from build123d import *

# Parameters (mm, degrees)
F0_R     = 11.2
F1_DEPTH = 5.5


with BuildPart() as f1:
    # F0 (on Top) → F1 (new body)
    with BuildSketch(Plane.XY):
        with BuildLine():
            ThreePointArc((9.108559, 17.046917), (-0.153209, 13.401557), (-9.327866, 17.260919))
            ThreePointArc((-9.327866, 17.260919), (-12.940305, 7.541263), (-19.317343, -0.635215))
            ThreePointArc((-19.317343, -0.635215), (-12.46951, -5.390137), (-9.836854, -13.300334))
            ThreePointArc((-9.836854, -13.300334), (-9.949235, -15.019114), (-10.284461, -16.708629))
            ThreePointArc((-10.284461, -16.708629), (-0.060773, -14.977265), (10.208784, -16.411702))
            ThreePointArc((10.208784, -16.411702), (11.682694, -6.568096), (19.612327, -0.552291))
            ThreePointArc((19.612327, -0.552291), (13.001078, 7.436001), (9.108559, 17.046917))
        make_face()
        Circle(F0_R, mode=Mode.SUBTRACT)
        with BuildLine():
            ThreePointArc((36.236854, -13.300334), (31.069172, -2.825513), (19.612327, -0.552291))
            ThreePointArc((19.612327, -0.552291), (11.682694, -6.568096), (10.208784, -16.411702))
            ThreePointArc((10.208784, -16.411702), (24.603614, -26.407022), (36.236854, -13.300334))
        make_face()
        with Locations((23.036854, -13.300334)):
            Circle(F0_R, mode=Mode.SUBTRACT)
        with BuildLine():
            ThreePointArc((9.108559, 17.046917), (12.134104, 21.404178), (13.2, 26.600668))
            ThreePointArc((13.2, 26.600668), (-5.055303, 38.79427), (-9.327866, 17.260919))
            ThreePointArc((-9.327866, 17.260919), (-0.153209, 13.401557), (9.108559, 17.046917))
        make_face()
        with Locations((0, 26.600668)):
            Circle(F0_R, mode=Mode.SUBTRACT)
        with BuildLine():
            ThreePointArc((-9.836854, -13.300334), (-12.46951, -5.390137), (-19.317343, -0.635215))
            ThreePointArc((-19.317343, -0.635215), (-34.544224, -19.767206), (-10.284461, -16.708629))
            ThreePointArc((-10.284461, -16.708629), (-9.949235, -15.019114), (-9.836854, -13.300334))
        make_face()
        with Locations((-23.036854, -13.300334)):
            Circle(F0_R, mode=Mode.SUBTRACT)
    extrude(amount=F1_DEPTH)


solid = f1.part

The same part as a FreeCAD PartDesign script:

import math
import FreeCAD as App
import Part
import Sketcher

V = App.Vector

doc = App.newDocument("Part")
body = doc.addObject("PartDesign::Body", "Body")

# Sketch on XY plane
sketch1 = doc.addObject("Sketcher::SketchObject", "Sketch")
body.addObject(sketch1)
sketch1.AttachmentSupport = (doc.XY_Plane, [""])
sketch1.MapMode = "FlatFace"
sketch1.addGeometry(Part.ArcOfCircle(Part.Circle(V(42, 25, 0), V(0, 0, 1), 34), math.radians(-167), math.radians(-132)), False)
sketch1.addGeometry(Part.ArcOfCircle(Part.Circle(V(0, 27, 0), V(0, 0, 1), 13), math.radians(-46), math.radians(0)), False)
sketch1.addGeometry(Part.ArcOfCircle(Part.Circle(V(0, 27, 0), V(0, 0, 1), 13), math.radians(0), math.radians(225)), False)
sketch1.addGeometry(Part.ArcOfCircle(Part.Circle(V(-43, 24, 0), V(0, 0, 1), 34), math.radians(-47), math.radians(-12)), False)
sketch1.addGeometry(Part.ArcOfCircle(Part.Circle(V(-23, -13, 0), V(0, 0, 1), 13), math.radians(74), math.radians(345)), False)
sketch1.addGeometry(Part.ArcOfCircle(Part.Circle(V(0, -49, 0), V(0, 0, 1), 34), math.radians(73), math.radians(108)), False)
sketch1.addGeometry(Part.ArcOfCircle(Part.Circle(V(23, -13, 0), V(0, 0, 1), 13), math.radians(-166), math.radians(0)), False)
sketch1.addGeometry(Part.ArcOfCircle(Part.Circle(V(23, -13, 0), V(0, 0, 1), 13), math.radians(0), math.radians(105)), False)
sketch1.addGeometry(Part.Circle(V(-23, -13, 0), V(0, 0, 1), 11), False)
sketch1.addGeometry(Part.Circle(V(23, -13, 0), V(0, 0, 1), 11), False)
sketch1.addGeometry(Part.Circle(V(0, 0, 0), V(0, 0, 1), 11), False)
sketch1.addGeometry(Part.Circle(V(0, 27, 0), V(0, 0, 1), 11), False)
sketch1.addConstraint(Sketcher.Constraint("Coincident", 0, 1, 1, 1))
sketch1.addConstraint(Sketcher.Constraint("Tangent", 1, 2, 2, 1))
sketch1.addConstraint(Sketcher.Constraint("Coincident", 2, 2, 3, 2))
sketch1.addConstraint(Sketcher.Constraint("Coincident", 3, 1, 4, 1))
sketch1.addConstraint(Sketcher.Constraint("Coincident", 4, 2, 5, 2))
sketch1.addConstraint(Sketcher.Constraint("Coincident", 5, 1, 6, 1))
sketch1.addConstraint(Sketcher.Constraint("Tangent", 6, 2, 7, 1))
sketch1.addConstraint(Sketcher.Constraint("Coincident", 7, 2, 0, 2))
sketch1.addConstraint(Sketcher.Constraint("Coincident", 10, 3, -1, 1))
sketch1.addConstraint(Sketcher.Constraint("Coincident", 8, 3, 4, 3))
sketch1.addConstraint(Sketcher.Constraint("Coincident", 9, 3, 6, 3))
sketch1.addConstraint(Sketcher.Constraint("Coincident", 11, 3, 1, 3))
sketch1.addConstraint(Sketcher.Constraint("Equal", 2, 4))
sketch1.addConstraint(Sketcher.Constraint("Equal", 0, 5))
sketch1.addConstraint(Sketcher.Constraint("Equal", 4, 6))
sketch1.addConstraint(Sketcher.Constraint("Equal", 6, 7))
sketch1.addConstraint(Sketcher.Constraint("Equal", 8, 9))
sketch1.addConstraint(Sketcher.Constraint("Equal", 9, 10))
sketch1.addConstraint(Sketcher.Constraint("Equal", 10, 11))
sketch1.addConstraint(Sketcher.Constraint("Symmetric", 4, 3, 6, 3, -2))
sketch1.addConstraint(Sketcher.Constraint("PointOnObject", 2, 3, -2))
sketch1.addConstraint(Sketcher.Constraint("PointOnObject", 11, 3, -2))
sketch1.addConstraint(Sketcher.Constraint("Horizontal", 11, 3, 1, 2))
sketch1.addConstraint(Sketcher.Constraint("Horizontal", 9, 3, 6, 2))
sketch1.addConstraint(Sketcher.Constraint("Diameter", 8, 22.4))
sketch1.addConstraint(Sketcher.Constraint("Radius", 2, 13.2))
sketch1.addConstraint(Sketcher.Constraint("Radius", 0, 33.959849))
sketch1.addConstraint(Sketcher.Constraint("Radius", 3, 33.959842))
sketch1.addConstraint(Sketcher.Constraint("DistanceY", 7, 3, 2, 3, 39.901002))
sketch1.addConstraint(Sketcher.Constraint("DistanceX", 3, 3, -1, 1, 42.5933))
sketch1.addConstraint(Sketcher.Constraint("DistanceY", -1, 1, 0, 3, 24.84022))
sketch1.addConstraint(Sketcher.Constraint("DistanceY", -1, 1, 1, 3, 26.60067))
sketch1.addConstraint(Sketcher.Constraint("DistanceX", -1, 1, 5, 3, 0.43122))
sketch1.addConstraint(Sketcher.Constraint("DistanceY", 5, 3, -1, 1, 48.933552))
sketch1.addConstraint(Sketcher.Constraint("DistanceX", -1, 1, 0, 1, 9.108559))
sketch1.addConstraint(Sketcher.Constraint("DistanceY", -1, 1, 2, 2, 17.260919))
sketch1.addConstraint(Sketcher.Constraint("DistanceX", 4, 2, -1, 1, 10.284461))
pad1 = doc.addObject("PartDesign::Pad", "Pad")
body.addObject(pad1)
pad1.Profile = sketch1
pad1.Length = 5.5

doc.recompute()
